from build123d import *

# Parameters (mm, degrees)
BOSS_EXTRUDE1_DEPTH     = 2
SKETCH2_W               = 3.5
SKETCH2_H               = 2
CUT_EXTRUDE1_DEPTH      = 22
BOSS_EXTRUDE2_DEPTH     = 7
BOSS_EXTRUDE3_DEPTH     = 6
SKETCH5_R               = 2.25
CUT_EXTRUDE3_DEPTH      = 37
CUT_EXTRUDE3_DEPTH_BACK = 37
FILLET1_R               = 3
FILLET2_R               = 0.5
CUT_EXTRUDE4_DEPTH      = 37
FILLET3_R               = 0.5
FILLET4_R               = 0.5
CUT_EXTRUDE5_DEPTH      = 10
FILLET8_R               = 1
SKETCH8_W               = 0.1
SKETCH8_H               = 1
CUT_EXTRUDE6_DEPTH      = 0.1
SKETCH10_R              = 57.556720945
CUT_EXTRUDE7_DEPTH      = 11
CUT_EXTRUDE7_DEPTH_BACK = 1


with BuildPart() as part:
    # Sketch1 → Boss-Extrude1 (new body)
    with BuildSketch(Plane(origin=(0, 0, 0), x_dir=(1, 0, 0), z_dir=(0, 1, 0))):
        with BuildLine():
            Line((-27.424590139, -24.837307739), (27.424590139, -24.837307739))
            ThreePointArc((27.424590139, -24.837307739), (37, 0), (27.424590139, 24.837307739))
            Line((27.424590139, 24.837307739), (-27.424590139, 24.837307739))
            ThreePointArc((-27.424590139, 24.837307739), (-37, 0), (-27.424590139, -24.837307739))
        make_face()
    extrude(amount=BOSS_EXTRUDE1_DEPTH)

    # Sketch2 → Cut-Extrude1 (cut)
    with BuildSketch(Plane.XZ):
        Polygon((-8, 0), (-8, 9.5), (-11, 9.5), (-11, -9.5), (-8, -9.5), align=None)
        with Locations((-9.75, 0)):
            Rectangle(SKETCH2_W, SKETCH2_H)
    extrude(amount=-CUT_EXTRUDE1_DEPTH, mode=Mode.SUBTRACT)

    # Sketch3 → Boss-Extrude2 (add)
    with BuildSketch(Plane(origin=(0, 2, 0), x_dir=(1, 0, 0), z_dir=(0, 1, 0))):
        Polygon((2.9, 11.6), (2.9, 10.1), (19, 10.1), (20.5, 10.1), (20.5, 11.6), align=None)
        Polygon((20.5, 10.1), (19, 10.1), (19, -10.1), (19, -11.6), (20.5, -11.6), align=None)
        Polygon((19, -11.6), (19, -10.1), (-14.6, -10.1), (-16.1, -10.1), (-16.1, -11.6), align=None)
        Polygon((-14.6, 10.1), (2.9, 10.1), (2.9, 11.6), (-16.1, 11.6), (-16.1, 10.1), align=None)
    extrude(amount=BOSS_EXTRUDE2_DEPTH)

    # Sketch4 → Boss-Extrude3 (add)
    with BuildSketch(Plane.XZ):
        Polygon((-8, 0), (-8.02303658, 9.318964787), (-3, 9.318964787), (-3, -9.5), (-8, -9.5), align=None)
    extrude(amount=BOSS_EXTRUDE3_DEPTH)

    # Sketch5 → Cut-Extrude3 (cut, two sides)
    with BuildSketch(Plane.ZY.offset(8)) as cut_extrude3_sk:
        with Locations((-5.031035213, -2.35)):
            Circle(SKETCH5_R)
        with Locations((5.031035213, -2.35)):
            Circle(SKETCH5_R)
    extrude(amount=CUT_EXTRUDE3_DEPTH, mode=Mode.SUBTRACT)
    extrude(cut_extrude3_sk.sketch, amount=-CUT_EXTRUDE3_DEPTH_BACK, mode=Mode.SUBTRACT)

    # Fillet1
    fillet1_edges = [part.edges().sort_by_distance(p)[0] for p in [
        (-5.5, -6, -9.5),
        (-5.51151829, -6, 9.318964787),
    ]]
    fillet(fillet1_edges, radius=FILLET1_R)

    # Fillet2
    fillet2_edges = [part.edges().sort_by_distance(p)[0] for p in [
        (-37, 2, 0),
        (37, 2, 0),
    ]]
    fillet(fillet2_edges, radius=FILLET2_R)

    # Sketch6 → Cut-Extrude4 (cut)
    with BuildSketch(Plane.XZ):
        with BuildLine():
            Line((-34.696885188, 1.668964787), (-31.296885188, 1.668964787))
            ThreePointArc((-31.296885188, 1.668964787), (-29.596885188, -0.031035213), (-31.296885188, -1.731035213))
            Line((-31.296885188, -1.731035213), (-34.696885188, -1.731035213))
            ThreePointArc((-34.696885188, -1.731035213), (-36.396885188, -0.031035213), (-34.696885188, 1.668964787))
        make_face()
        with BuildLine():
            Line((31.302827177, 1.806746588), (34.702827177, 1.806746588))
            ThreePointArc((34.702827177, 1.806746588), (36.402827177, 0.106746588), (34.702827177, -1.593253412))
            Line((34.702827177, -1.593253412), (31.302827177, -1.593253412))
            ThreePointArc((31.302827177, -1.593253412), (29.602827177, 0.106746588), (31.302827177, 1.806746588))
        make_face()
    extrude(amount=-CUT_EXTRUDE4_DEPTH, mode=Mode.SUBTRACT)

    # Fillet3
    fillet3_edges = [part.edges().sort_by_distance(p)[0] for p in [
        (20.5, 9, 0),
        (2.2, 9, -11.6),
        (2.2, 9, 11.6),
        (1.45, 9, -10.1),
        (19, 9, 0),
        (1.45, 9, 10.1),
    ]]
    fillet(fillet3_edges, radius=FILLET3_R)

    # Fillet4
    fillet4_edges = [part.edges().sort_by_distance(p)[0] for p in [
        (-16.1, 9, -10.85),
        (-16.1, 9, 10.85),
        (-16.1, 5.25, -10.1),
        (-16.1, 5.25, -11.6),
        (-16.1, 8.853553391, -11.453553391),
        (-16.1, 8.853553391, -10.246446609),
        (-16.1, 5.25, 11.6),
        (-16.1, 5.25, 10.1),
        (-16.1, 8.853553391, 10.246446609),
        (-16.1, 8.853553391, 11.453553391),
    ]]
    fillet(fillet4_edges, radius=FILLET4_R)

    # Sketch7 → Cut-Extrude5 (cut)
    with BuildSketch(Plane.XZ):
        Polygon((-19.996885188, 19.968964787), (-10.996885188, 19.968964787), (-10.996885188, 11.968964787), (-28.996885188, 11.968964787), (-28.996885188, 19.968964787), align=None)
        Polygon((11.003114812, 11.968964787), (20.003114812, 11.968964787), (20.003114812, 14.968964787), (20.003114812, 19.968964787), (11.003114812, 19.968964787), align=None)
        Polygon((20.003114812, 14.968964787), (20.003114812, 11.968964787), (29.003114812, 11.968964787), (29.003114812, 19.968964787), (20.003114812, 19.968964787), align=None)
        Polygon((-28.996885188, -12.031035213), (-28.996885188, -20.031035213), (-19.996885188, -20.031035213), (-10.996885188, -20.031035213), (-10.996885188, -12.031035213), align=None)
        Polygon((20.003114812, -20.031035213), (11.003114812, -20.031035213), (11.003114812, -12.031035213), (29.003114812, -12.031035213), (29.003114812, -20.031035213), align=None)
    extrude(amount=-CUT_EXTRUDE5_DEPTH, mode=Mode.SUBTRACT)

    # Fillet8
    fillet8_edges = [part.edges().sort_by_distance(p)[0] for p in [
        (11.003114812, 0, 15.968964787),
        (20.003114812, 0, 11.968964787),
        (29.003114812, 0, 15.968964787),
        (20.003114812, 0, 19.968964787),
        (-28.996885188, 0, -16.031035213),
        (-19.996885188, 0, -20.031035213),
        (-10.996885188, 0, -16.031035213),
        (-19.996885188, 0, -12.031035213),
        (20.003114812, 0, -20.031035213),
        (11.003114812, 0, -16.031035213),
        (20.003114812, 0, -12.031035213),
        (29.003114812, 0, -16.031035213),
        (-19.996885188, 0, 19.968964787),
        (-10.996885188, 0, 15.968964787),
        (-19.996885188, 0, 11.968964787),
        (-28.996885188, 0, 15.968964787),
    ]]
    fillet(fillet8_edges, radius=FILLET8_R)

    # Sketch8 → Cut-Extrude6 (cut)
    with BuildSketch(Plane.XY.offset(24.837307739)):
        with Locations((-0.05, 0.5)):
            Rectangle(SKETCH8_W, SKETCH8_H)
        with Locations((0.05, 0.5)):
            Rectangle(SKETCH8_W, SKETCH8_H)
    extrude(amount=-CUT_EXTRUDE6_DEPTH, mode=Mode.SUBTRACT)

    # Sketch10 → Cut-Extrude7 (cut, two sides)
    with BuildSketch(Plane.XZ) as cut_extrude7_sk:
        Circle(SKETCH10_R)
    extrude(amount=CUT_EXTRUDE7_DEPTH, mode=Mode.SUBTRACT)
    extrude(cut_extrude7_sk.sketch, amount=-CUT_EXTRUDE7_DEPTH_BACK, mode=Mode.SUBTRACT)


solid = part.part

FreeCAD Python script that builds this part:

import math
import FreeCAD as App
import Part
import Sketcher

V = App.Vector


def edges_at(feature, points):
    """Names of the edges that pass closest to the given points."""
    edges = feature.Shape.Edges
    near = lambda p: min(range(len(edges)), key=lambda i: edges[i].distToShape(Part.Vertex(*p))[0])
    return sorted({f"Edge{near(p) + 1}" for p in points})

doc = App.newDocument("Part")
body = doc.addObject("PartDesign::Body", "Body")

sketch1 = body.newObject("Sketcher::SketchObject", "Sketch")
sketch1.AttachmentSupport = (doc.getObject("XZ_Plane"), [""])
sketch1.MapMode = "FlatFace"
sketch1.addGeometry([
    Part.LineSegment(V(-27, 25, 0), V(27, 25, 0)),
    Part.ArcOfCircle(Part.Circle(V(0, 0, 0), V(0, 0, 1), 37), math.radians(-42), math.radians(42)),
    Part.LineSegment(V(27, -25, 0), V(-27, -25, 0)),
    Part.ArcOfCircle(Part.Circle(V(0, 0, 0), V(0, 0, 1), 37), math.radians(138), math.radians(222)),
], False)
sketch1.addConstraint([
    Sketcher.Constraint("Coincident", 0, 2, 1, 2),
    Sketcher.Constraint("Coincident", 1, 1, 2, 1),
    Sketcher.Constraint("Coincident", 2, 2, 3, 2),
    Sketcher.Constraint("Coincident", 3, 1, 0, 1),
    Sketcher.Constraint("Horizontal", 0),
    Sketcher.Constraint("Horizontal", 2),
    Sketcher.Constraint("Coincident", 1, 3, -1, 1),
    Sketcher.Constraint("Coincident", 3, 3, -1, 1),
    Sketcher.Constraint("Equal", 1, 3),
    Sketcher.Constraint("Vertical", 0, 2, 1, 1),
    Sketcher.Constraint("Radius", 1, 37.0),
    Sketcher.Constraint("DistanceX", 0, 1, 0, 2, 54.84918),
])
pad1 = body.newObject("PartDesign::Pad", "Pad")
pad1.Profile = sketch1
pad1.Length = 2
pad1.Reversed = True

sketch2 = body.newObject("Sketcher::SketchObject", "Sketch001")
sketch2.AttachmentSupport = (doc.getObject("XZ_Plane"), [""])
sketch2.MapMode = "FlatFace"
sketch2.addGeometry([
    Part.LineSegment(V(-8, 9.5, 0), V(-11, 9.5, 0)),
    Part.LineSegment(V(-11, 9.5, 0), V(-11, 1, 0)),
    Part.LineSegment(V(-11, 1, 0), V(-11.5, 1, 0)),
    Part.LineSegment(V(-11.5, 1, 0), V(-11.5, -1, 0)),
    Part.LineSegment(V(-11.5, -1, 0), V(-11, -1, 0)),
    Part.LineSegment(V(-11, -1, 0), V(-11, -9.5, 0)),
    Part.LineSegment(V(-11, -9.5, 0), V(-8, -9.5, 0)),
    Part.LineSegment(V(-8, -9.5, 0), V(-8, 9.5, 0)),
], False)
sketch2.addConstraint([
    Sketcher.Constraint("Coincident", 0, 2, 1, 1),
    Sketcher.Constraint("Coincident", 1, 2, 2, 1),
    Sketcher.Constraint("Coincident", 2, 2, 3, 1),
    Sketcher.Constraint("Coincident", 3, 2, 4, 1),
    Sketcher.Constraint("Coincident", 4, 2, 5, 1),
    Sketcher.Constraint("Coincident", 5, 2, 6, 1),
    Sketcher.Constraint("Coincident", 6, 2, 7, 1),
    Sketcher.Constraint("Coincident", 7, 2, 0, 1),
    Sketcher.Constraint("Horizontal", 0),
    Sketcher.Constraint("Vertical", 1),
    Sketcher.Constraint("Horizontal", 2),
    Sketcher.Constraint("Vertical", 3),
    Sketcher.Constraint("Horizontal", 4),
    Sketcher.Constraint("Vertical", 5),
    Sketcher.Constraint("Horizontal", 6),
    Sketcher.Constraint("Vertical", 7),
    Sketcher.Constraint("Symmetric", 1, 2, 4, 2, -1),
    Sketcher.Constraint("Equal", 1, 5),
    Sketcher.Constraint("DistanceX", 0, 2, 0, 1, 3.0),
    Sketcher.Constraint("DistanceY", 3, 2, 3, 1, 2.0),
    Sketcher.Constraint("DistanceY", 7, 1, 7, 2, 19.0),
    Sketcher.Constraint("DistanceX", 2, 2, 2, 1, 0.5),
    Sketcher.Constraint("DistanceX", 0, 2, -1, 1, 11.0),
])
pocket1 = body.newObject("PartDesign::Pocket", "Pocket")
pocket1.Profile = sketch2
pocket1.Length = 22

sketch3 = body.newObject("Sketcher::SketchObject", "Sketch002")
sketch3.AttachmentSupport = (doc.getObject("XZ_Plane"), [""])
sketch3.MapMode = "FlatFace"
sketch3.AttachmentOffset = App.Placement(V(0, 0, -2), App.Rotation())
sketch3.addGeometry([
    Part.LineSegment(V(19, -10.1, 0), V(19, 10.1, 0)),
    Part.LineSegment(V(19, 10.1, 0), V(-16.1, 10.1, 0)),
    Part.LineSegment(V(-16.1, 10.1, 0), V(-16.1, 11.6, 0)),
    Part.LineSegment(V(-16.1, 11.6, 0), V(20.5, 11.6, 0)),
    Part.LineSegment(V(20.5, 11.6, 0), V(20.5, -11.6, 0)),
    Part.LineSegment(V(20.5, -11.6, 0), V(-16.1, -11.6, 0)),
    Part.LineSegment(V(-16.1, -11.6, 0), V(-16.1, -10.1, 0)),
    Part.LineSegment(V(-16.1, -10.1, 0), V(19, -10.1, 0)),
], False)
sketch3.addConstraint([
    Sketcher.Constraint("Coincident", 0, 2, 1, 1),
    Sketcher.Constraint("Coincident", 1, 2, 2, 1),
    Sketcher.Constraint("Coincident", 2, 2, 3, 1),
    Sketcher.Constraint("Coincident", 3, 2, 4, 1),
    Sketcher.Constraint("Coincident", 4, 2, 5, 1),
    Sketcher.Constraint("Coincident", 5, 2, 6, 1),
    Sketcher.Constraint("Coincident", 6, 2, 7, 1),
    Sketcher.Constraint("Coincident", 7, 2, 0, 1),
    Sketcher.Constraint("Vertical", 0),
    Sketcher.Constraint("Horizontal", 1),
    Sketcher.Constraint("Vertical", 2),
    Sketcher.Constraint("Horizontal", 3),
    Sketcher.Constraint("Vertical", 4),
    Sketcher.Constraint("Horizontal", 5),
    Sketcher.Constraint("Vertical", 6),
    Sketcher.Constraint("Horizontal", 7),
    Sketcher.Constraint("Symmetric", 2, 2, 5, 2, -1),
    Sketcher.Constraint("Equal", 2, 6),
    Sketcher.Constraint("DistanceX", 1, 2, 1, 1, 35.1),
    Sketcher.Constraint("DistanceX", 3, 1, 3, 2, 36.6),
    Sketcher.Constraint("DistanceY", 0, 1, 0, 2, 20.2),
    Sketcher.Constraint("DistanceY", 2, 1, 2, 2, 1.5),
    Sketcher.Constraint("DistanceX", -1, 1, 0, 2, 19.0),
])
pad2 = body.newObject("PartDesign::Pad", "Pad001")
pad2.Profile = sketch3
pad2.Length = 7
pad2.Reversed = True

sketch4 = body.newObject("Sketcher::SketchObject", "Sketch003")
sketch4.AttachmentSupport = (doc.getObject("XZ_Plane"), [""])
sketch4.MapMode = "FlatFace"
sketch4.addGeometry([
    Part.LineSegment(V(-8, 9, 0), V(-8, 0, 0)),
    Part.LineSegment(V(-8, 0, 0), V(-8, -10, 0)),
    Part.LineSegment(V(-8, -10, 0), V(-3, -10, 0)),
    Part.LineSegment(V(-3, -10, 0), V(-3, 9, 0)),
    Part.LineSegment(V(-3, 9, 0), V(-8, 9, 0)),
], False)
sketch4.addConstraint([
    Sketcher.Constraint("Coincident", 0, 2, 1, 1),
    Sketcher.Constraint("Coincident", 1, 2, 2, 1),
    Sketcher.Constraint("Coincident", 2, 2, 3, 1),
    Sketcher.Constraint("Coincident", 3, 2, 4, 1),
    Sketcher.Constraint("Coincident", 4, 2, 0, 1),
    Sketcher.Constraint("Vertical", 1),
    Sketcher.Constraint("Horizontal", 2),
    Sketcher.Constraint("Vertical", 3),
    Sketcher.Constraint("Horizontal", 4),
    Sketcher.Constraint("PointOnObject", 0, 2, -1),
    Sketcher.Constraint("DistanceX", 2, 1, 2, 2, 5.0),
    Sketcher.Constraint("DistanceY", 1, 2, 1, 1, 9.5),
    Sketcher.Constraint("DistanceX", 0, 2, -1, 1, 8.0),
    Sketcher.Constraint("DistanceX", 4, 2, 4, 1, 5.023037),
    Sketcher.Constraint("DistanceY", 3, 1, 3, 2, 18.818965),
])
pad3 = body.newObject("PartDesign::Pad", "Pad002")
pad3.Profile = sketch4
pad3.Length = 6

sketch5 = body.newObject("Sketcher::SketchObject", "Sketch004")
sketch5.AttachmentSupport = (doc.getObject("YZ_Plane"), [""])
sketch5.MapMode = "FlatFace"
sketch5.AttachmentOffset = App.Placement(V(0, 0, -8), App.Rotation())
sketch5.addGeometry([
    Part.Circle(V(-2.4, -5, 0), V(0, 0, 1), 2.2),
    Part.Circle(V(-2.4, 5, 0), V(0, 0, 1), 2.2),
], False)
sketch5.addConstraint([
    Sketcher.Constraint("Equal", 0, 1),
    Sketcher.Constraint("Symmetric", 0, 3, 1, 3, -1),
    Sketcher.Constraint("Diameter", 0, 4.5),
    Sketcher.Constraint("DistanceX", 0, 3, -1, 1, 2.35),
    Sketcher.Constraint("DistanceY", 0, 3, 1, 3, 10.06207),
])
pocket2 = body.newObject("PartDesign::Pocket", "Pocket001")
pocket2.Profile = sketch5
pocket2.Type = "ThroughAll"
pocket2.Midplane = True
doc.recompute()

fillet = body.newObject("PartDesign::Fillet", "Fillet")
fillet.Base = (pocket2, edges_at(pocket2, [(-5.5, -6, -9.5), (-5.512, -6, 9.319)]))
fillet.Radius = 3
doc.recompute()

fillet2 = body.newObject("PartDesign::Fillet", "Fillet001")
fillet2.Base = (fillet, edges_at(fillet, [(-37, 2, 0), (37, 2, 0)]))
fillet2.Radius = 0.5

sketch6 = body.newObject("Sketcher::SketchObject", "Sketch005")
sketch6.AttachmentSupport = (doc.getObject("XZ_Plane"), [""])
sketch6.MapMode = "FlatFace"
sketch6.addGeometry([
    Part.LineSegment(V(-31.3, 1.7, 0), V(-34.7, 1.7, 0)),
    Part.ArcOfCircle(Part.Circle(V(-34.7, 0, 0), V(0, 0, 1), 1.7), math.radians(90), math.radians(270)),
    Part.LineSegment(V(-34.7, -1.7, 0), V(-31.3, -1.7, 0)),
    Part.ArcOfCircle(Part.Circle(V(-31.3, 0, 0), V(0, 0, 1), 1.7), math.radians(-90), math.radians(90)),
    Part.LineSegment(V(34.7, 1.8, 0), V(31.3, 1.8, 0)),
    Part.ArcOfCircle(Part.Circle(V(31.3, 0.1, 0), V(0, 0, 1), 1.7), math.radians(90), math.radians(270)),
    Part.LineSegment(V(31.3, -1.6, 0), V(34.7, -1.6, 0)),
    Part.ArcOfCircle(Part.Circle(V(34.7, 0.1, 0), V(0, 0, 1), 1.7), math.radians(-90), math.radians(90)),
], False)
sketch6.addConstraint([
    Sketcher.Constraint("Tangent", 0, 2, 1, 1),
    Sketcher.Constraint("Tangent", 1, 2, 2, 1),
    Sketcher.Constraint("Tangent", 2, 2, 3, 1),
    Sketcher.Constraint("Tangent", 3, 2, 0, 1),
    Sketcher.Constraint("Tangent", 4, 2, 5, 1),
    Sketcher.Constraint("Tangent", 5, 2, 6, 1),
    Sketcher.Constraint("Tangent", 6, 2, 7, 1),
    Sketcher.Constraint("Tangent", 7, 2, 4, 1),
    Sketcher.Constraint("Horizontal", 0),
    Sketcher.Constraint("Horizontal", 2),
    Sketcher.Constraint("Horizontal", 4),
    Sketcher.Constraint("Horizontal", 6),
    Sketcher.Constraint("Equal", 3, 5),
    Sketcher.Constraint("Equal", 2, 4),
    Sketcher.Constraint("Radius", 1, 1.7),
    Sketcher.Constraint("DistanceX", 0, 2, 0, 1, 3.4),
    Sketcher.Constraint("DistanceY", 3, 3, 5, 3, 0.137782),
    Sketcher.Constraint("DistanceX", 1, 3, -1, 1, 34.696885),
    Sketcher.Constraint("DistanceY", 1, 3, -1, 1, 0.031035),
    Sketcher.Constraint("DistanceX", -1, 1, 5, 3, 31.302827),
])
pocket3 = body.newObject("PartDesign::Pocket", "Pocket002")
pocket3.Profile = sketch6
pocket3.Length = 37
doc.recompute()

fillet3 = body.newObject("PartDesign::Fillet", "Fillet002")
fillet3.Base = (pocket3, edges_at(pocket3, [
    (20.5, 9, 0),
    (2.2, 9, -11.6),
    (2.2, 9, 11.6),
    (1.45, 9, -10.1),
    (19, 9, 0),
    (1.45, 9, 10.1),
]))
fillet3.Radius = 0.5
doc.recompute()

fillet4 = body.newObject("PartDesign::Fillet", "Fillet003")
fillet4.Base = (fillet3, edges_at(fillet3, [
    (-16.1, 9, -10.85),
    (-16.1, 9, 10.85),
    (-16.1, 5.25, -10.1),
    (-16.1, 5.25, -11.6),
    (-16.1, 8.854, -11.454),
    (-16.1, 8.854, -10.246),
    (-16.1, 5.25, 11.6),
    (-16.1, 5.25, 10.1),
    (-16.1, 8.854, 10.246),
    (-16.1, 8.854, 11.454),
]))
fillet4.Radius = 0.5

sketch7 = body.newObject("Sketcher::SketchObject", "Sketch006")
sketch7.AttachmentSupport = (doc.getObject("XZ_Plane"), [""])
sketch7.MapMode = "FlatFace"
sketch7.addGeometry([
    Part.LineSegment(V(-11, 20, 0), V(-29, 20, 0)),
    Part.LineSegment(V(-29, 20, 0), V(-29, 12, 0)),
    Part.LineSegment(V(-29, 12, 0), V(-11, 12, 0)),
    Part.LineSegment(V(-11, 12, 0), V(-11, 20, 0)),
    Part.LineSegment(V(11, 12, 0), V(29, 12, 0)),
    Part.LineSegment(V(29, 12, 0), V(29, 20, 0)),
    Part.LineSegment(V(29, 20, 0), V(11, 20, 0)),
    Part.LineSegment(V(11, 20, 0), V(11, 12, 0)),
    Part.LineSegment(V(-29, -12, 0), V(-29, -20, 0)),
    Part.LineSegment(V(-29, -20, 0), V(-11, -20, 0)),
    Part.LineSegment(V(-11, -20, 0), V(-11, -12, 0)),
    Part.LineSegment(V(-11, -12, 0), V(-29, -12, 0)),
    Part.LineSegment(V(11, -20, 0), V(29, -20, 0)),
    Part.LineSegment(V(29, -20, 0), V(29, -12, 0)),
    Part.LineSegment(V(29, -12, 0), V(11, -12, 0)),
    Part.LineSegment(V(11, -12, 0), V(11, -20, 0)),
], False)
sketch7.addConstraint([
    Sketcher.Constraint("Coincident", 0, 2, 1, 1),
    Sketcher.Constraint("Coincident", 1, 2, 2, 1),
    Sketcher.Constraint("Coincident", 2, 2, 3, 1),
    Sketcher.Constraint("Coincident", 3, 2, 0, 1),
    Sketcher.Constraint("Coincident", 4, 2, 5, 1),
    Sketcher.Constraint("Coincident", 5, 2, 6, 1),
    Sketcher.Constraint("Coincident", 6, 2, 7, 1),
    Sketcher.Constraint("Coincident", 7, 2, 4, 1),
    Sketcher.Constraint("Coincident", 8, 2, 9, 1),
    Sketcher.Constraint("Coincident", 9, 2, 10, 1),
    Sketcher.Constraint("Coincident", 10, 2, 11, 1),
    Sketcher.Constraint("Coincident", 11, 2, 8, 1),
    Sketcher.Constraint("Coincident", 12, 2, 13, 1),
    Sketcher.Constraint("Coincident", 13, 2, 14, 1),
    Sketcher.Constraint("Coincident", 14, 2, 15, 1),
    Sketcher.Constraint("Coincident", 15, 2, 12, 1),
    Sketcher.Constraint("Horizontal", 0),
    Sketcher.Constraint("Vertical", 1),
    Sketcher.Constraint("Horizontal", 2),
    Sketcher.Constraint("Vertical", 3),
    Sketcher.Constraint("Horizontal", 4),
    Sketcher.Constraint("Vertical", 5),
    Sketcher.Constraint("Horizontal", 6),
    Sketcher.Constraint("Vertical", 7),
    Sketcher.Constraint("Vertical", 8),
    Sketcher.Constraint("Horizontal", 9),
    Sketcher.Constraint("Vertical", 10),
    Sketcher.Constraint("Horizontal", 11),
    Sketcher.Constraint("Horizontal", 12),
    Sketcher.Constraint("Vertical", 13),
    Sketcher.Constraint("Horizontal", 14),
    Sketcher.Constraint("Vertical", 15),
    Sketcher.Constraint("Horizontal", 2, 2, 4, 2),
    Sketcher.Constraint("Horizontal", 3, 2, 5, 2),
    Sketcher.Constraint("Horizontal", 9, 2, 12, 2),
    Sketcher.Constraint("Horizontal", 11, 2, 13, 2),
    Sketcher.Constraint("Vertical", 1, 2, 8, 2),
    Sketcher.Constraint("Vertical", 3, 2, 9, 2),
    Sketcher.Constraint("Vertical", 5, 2, 12, 2),
    Sketcher.Constraint("Vertical", 7, 2, 14, 2),
    Sketcher.Constraint("Equal", 2, 4),
    Sketcher.Constraint("Equal", 7, 8),
    Sketcher.Constraint("DistanceX", 0, 2, 0, 1, 18.0),
    Sketcher.Constraint("DistanceY", 1, 2, 1, 1, 8.0),
    Sketcher.Constraint("DistanceX", 2, 2, 4, 2, 40.0),
    Sketcher.Constraint("DistanceY", 8, 2, 1, 2, 32.0),
    Sketcher.Constraint("DistanceX", 0, 2, -1, 1, 28.996885),
    Sketcher.Constraint("DistanceY", -1, 1, 0, 2, 19.968965),
])
pocket4 = body.newObject("PartDesign::Pocket", "Pocket003")
pocket4.Profile = sketch7
pocket4.Length = 10
doc.recompute()

fillet5 = body.newObject("PartDesign::Fillet", "Fillet004")
fillet5.Base = (pocket4, edges_at(pocket4, [
    (11.003, 0, 15.969),
    (20.003, 0, 11.969),
    (29.003, 0, 15.969),
    (20.003, 0, 19.969),
    (-28.997, 0, -16.031),
    (-19.997, 0, -20.031),
    (-10.997, 0, -16.031),
    (-19.997, 0, -12.031),
    (20.003, 0, -20.031),
    (11.003, 0, -16.031),
    (20.003, 0, -12.031),
    (29.003, 0, -16.031),
    (-19.997, 0, 19.969),
    (-10.997, 0, 15.969),
    (-19.997, 0, 11.969),
    (-28.997, 0, 15.969),
]))
fillet5.Radius = 1

sketch8 = body.newObject("Sketcher::SketchObject", "Sketch007")
sketch8.AttachmentSupport = (doc.getObject("XY_Plane"), [""])
sketch8.MapMode = "FlatFace"
sketch8.AttachmentOffset = App.Placement(V(0, 0, 24.837308), App.Rotation())
sketch8.addGeometry([
    Part.LineSegment(V(-0.1, 1, 0), V(-0.1, 0, 0)),
    Part.LineSegment(V(-0.1, 0, 0), V(0.1, 0, 0)),
    Part.LineSegment(V(0.1, 0, 0), V(0.1, 1, 0)),
    Part.LineSegment(V(0.1, 1, 0), V(-0.1, 1, 0)),
], False)
sketch8.addConstraint([
    Sketcher.Constraint("Coincident", 0, 2, 1, 1),
    Sketcher.Constraint("Coincident", 1, 2, 2, 1),
    Sketcher.Constraint("Coincident", 2, 2, 3, 1),
    Sketcher.Constraint("Coincident", 3, 2, 0, 1),
    Sketcher.Constraint("Vertical", 0),
    Sketcher.Constraint("Horizontal", 1),
    Sketcher.Constraint("Vertical", 2),
    Sketcher.Constraint("Horizontal", 3),
    Sketcher.Constraint("Symmetric", 0, 2, 1, 2, -1, 1),
    Sketcher.Constraint("DistanceY", 0, 2, 0, 1, 1.0),
    Sketcher.Constraint("DistanceX", 1, 1, 1, 2, 0.2),
])
pocket5 = body.newObject("PartDesign::Pocket", "Pocket004")
pocket5.Profile = sketch8
pocket5.Length = 0.1

sketch9 = body.newObject("Sketcher::SketchObject", "Sketch008")
sketch9.AttachmentSupport = (doc.getObject("XZ_Plane"), [""])
sketch9.MapMode = "FlatFace"
sketch9.addGeometry(Part.Circle(V(0, 0, 0), V(0, 0, 1), 58), False)
sketch9.addConstraint([
    Sketcher.Constraint("Coincident", 0, 3, -1, 1),
    Sketcher.Constraint("Diameter", 0, 115.113442),
])
pocket6 = body.newObject("PartDesign::Pocket", "Pocket005")
pocket6.Profile = sketch9
pocket6.Type = "TwoLengths"
pocket6.Length = 11
pocket6.Length2 = 1
pocket6.Reversed = True

doc.recompute()
